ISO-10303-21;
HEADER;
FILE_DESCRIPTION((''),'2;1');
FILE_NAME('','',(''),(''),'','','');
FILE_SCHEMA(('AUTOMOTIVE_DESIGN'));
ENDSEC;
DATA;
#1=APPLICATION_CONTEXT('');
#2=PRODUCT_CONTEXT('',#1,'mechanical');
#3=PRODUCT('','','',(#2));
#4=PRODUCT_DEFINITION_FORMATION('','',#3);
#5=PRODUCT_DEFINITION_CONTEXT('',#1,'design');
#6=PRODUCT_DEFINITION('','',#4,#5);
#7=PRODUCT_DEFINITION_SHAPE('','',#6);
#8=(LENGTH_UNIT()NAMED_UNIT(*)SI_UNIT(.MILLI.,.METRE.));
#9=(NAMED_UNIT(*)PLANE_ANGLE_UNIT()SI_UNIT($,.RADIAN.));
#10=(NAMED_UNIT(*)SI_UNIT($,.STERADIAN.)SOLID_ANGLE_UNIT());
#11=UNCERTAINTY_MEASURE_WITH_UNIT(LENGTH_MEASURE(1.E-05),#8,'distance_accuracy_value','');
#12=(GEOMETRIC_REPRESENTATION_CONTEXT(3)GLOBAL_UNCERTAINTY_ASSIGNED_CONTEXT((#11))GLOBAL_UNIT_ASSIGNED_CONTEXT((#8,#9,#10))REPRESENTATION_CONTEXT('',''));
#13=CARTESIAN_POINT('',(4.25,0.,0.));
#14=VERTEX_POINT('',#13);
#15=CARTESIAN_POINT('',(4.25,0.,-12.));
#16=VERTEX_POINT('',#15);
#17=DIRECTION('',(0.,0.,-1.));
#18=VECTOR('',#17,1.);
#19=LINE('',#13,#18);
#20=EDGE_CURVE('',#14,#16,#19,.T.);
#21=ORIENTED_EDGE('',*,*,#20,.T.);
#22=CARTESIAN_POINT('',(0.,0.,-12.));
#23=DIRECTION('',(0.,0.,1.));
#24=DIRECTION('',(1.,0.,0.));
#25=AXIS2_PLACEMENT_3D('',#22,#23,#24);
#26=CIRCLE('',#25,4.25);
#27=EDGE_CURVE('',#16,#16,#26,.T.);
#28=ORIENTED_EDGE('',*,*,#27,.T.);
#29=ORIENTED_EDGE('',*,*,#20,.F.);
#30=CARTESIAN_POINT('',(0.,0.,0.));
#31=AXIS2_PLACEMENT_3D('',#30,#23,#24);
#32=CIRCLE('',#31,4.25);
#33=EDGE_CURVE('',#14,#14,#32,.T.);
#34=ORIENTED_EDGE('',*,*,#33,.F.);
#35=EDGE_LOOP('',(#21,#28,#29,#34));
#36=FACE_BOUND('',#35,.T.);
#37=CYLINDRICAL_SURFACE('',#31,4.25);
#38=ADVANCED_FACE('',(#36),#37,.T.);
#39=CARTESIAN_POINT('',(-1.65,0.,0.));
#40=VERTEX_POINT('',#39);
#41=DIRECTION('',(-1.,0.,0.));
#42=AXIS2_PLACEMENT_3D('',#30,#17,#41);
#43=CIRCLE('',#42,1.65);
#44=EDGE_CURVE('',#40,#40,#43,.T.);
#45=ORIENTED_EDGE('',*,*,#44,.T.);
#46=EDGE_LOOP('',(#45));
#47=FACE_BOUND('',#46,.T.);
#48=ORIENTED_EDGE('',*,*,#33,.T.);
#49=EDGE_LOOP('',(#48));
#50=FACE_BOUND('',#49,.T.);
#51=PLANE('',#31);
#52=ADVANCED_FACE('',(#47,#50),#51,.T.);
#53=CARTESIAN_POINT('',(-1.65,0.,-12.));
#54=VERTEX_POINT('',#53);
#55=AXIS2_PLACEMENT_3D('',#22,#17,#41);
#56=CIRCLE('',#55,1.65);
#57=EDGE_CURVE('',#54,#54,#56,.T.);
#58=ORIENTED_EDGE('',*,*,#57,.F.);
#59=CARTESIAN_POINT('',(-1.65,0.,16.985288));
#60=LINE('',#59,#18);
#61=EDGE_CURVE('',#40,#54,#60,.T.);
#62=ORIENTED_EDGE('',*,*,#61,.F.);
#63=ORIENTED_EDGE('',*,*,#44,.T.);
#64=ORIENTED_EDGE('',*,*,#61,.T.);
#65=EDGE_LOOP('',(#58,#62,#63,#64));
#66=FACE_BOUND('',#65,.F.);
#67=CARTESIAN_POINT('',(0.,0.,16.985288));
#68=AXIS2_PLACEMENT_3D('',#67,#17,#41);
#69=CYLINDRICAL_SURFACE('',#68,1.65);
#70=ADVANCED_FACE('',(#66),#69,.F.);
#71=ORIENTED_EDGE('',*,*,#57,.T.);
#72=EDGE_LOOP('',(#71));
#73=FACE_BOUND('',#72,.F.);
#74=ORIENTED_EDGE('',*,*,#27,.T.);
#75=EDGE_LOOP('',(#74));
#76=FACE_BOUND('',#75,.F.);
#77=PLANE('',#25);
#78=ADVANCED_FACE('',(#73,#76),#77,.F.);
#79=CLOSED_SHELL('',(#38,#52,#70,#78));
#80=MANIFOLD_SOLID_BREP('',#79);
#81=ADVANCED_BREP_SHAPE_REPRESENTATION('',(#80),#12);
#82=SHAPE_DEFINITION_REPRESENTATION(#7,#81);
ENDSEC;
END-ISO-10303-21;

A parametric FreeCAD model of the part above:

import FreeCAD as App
import Part
import Sketcher

doc = App.newDocument("Part")
body = doc.addObject("PartDesign::Body", "Body")

sketch1 = body.newObject("Sketcher::SketchObject", "Sketch")
sketch1.AttachmentSupport = (doc.getObject("XY_Plane"), [""])
sketch1.MapMode = "FlatFace"
sketch1.addGeometry(Part.Circle(App.Vector(0, 0, 0), App.Vector(0, 0, 1), 4.2), False)
sketch1.addConstraint([
    Sketcher.Constraint("Coincident", 0, 3, -1, 1),
    Sketcher.Constraint("Diameter", 0, 8.5),
])
pad1 = body.newObject("PartDesign::Pad", "Pad")
pad1.Profile = sketch1
pad1.Length = 12
pad1.Reversed = True

sketch2 = body.newObject("Sketcher::SketchObject", "Sketch001")
sketch2.AttachmentSupport = (doc.getObject("XY_Plane"), [""])
sketch2.MapMode = "FlatFace"
sketch2.addGeometry(Part.Circle(App.Vector(0, 0, 0), App.Vector(0, 0, 1), 1.6), False)
sketch2.addConstraint([
    Sketcher.Constraint("Coincident", 0, 3, -1, 1),
    Sketcher.Constraint("Diameter", 0, 3.3),
])
doc.recompute()
hole = body.newObject("PartDesign::Hole", "Hole")
hole.Profile = sketch2
hole.ThreadType = "None"
hole.Diameter = 3.3
hole.DepthType = "ThroughAll"

doc.recompute()
